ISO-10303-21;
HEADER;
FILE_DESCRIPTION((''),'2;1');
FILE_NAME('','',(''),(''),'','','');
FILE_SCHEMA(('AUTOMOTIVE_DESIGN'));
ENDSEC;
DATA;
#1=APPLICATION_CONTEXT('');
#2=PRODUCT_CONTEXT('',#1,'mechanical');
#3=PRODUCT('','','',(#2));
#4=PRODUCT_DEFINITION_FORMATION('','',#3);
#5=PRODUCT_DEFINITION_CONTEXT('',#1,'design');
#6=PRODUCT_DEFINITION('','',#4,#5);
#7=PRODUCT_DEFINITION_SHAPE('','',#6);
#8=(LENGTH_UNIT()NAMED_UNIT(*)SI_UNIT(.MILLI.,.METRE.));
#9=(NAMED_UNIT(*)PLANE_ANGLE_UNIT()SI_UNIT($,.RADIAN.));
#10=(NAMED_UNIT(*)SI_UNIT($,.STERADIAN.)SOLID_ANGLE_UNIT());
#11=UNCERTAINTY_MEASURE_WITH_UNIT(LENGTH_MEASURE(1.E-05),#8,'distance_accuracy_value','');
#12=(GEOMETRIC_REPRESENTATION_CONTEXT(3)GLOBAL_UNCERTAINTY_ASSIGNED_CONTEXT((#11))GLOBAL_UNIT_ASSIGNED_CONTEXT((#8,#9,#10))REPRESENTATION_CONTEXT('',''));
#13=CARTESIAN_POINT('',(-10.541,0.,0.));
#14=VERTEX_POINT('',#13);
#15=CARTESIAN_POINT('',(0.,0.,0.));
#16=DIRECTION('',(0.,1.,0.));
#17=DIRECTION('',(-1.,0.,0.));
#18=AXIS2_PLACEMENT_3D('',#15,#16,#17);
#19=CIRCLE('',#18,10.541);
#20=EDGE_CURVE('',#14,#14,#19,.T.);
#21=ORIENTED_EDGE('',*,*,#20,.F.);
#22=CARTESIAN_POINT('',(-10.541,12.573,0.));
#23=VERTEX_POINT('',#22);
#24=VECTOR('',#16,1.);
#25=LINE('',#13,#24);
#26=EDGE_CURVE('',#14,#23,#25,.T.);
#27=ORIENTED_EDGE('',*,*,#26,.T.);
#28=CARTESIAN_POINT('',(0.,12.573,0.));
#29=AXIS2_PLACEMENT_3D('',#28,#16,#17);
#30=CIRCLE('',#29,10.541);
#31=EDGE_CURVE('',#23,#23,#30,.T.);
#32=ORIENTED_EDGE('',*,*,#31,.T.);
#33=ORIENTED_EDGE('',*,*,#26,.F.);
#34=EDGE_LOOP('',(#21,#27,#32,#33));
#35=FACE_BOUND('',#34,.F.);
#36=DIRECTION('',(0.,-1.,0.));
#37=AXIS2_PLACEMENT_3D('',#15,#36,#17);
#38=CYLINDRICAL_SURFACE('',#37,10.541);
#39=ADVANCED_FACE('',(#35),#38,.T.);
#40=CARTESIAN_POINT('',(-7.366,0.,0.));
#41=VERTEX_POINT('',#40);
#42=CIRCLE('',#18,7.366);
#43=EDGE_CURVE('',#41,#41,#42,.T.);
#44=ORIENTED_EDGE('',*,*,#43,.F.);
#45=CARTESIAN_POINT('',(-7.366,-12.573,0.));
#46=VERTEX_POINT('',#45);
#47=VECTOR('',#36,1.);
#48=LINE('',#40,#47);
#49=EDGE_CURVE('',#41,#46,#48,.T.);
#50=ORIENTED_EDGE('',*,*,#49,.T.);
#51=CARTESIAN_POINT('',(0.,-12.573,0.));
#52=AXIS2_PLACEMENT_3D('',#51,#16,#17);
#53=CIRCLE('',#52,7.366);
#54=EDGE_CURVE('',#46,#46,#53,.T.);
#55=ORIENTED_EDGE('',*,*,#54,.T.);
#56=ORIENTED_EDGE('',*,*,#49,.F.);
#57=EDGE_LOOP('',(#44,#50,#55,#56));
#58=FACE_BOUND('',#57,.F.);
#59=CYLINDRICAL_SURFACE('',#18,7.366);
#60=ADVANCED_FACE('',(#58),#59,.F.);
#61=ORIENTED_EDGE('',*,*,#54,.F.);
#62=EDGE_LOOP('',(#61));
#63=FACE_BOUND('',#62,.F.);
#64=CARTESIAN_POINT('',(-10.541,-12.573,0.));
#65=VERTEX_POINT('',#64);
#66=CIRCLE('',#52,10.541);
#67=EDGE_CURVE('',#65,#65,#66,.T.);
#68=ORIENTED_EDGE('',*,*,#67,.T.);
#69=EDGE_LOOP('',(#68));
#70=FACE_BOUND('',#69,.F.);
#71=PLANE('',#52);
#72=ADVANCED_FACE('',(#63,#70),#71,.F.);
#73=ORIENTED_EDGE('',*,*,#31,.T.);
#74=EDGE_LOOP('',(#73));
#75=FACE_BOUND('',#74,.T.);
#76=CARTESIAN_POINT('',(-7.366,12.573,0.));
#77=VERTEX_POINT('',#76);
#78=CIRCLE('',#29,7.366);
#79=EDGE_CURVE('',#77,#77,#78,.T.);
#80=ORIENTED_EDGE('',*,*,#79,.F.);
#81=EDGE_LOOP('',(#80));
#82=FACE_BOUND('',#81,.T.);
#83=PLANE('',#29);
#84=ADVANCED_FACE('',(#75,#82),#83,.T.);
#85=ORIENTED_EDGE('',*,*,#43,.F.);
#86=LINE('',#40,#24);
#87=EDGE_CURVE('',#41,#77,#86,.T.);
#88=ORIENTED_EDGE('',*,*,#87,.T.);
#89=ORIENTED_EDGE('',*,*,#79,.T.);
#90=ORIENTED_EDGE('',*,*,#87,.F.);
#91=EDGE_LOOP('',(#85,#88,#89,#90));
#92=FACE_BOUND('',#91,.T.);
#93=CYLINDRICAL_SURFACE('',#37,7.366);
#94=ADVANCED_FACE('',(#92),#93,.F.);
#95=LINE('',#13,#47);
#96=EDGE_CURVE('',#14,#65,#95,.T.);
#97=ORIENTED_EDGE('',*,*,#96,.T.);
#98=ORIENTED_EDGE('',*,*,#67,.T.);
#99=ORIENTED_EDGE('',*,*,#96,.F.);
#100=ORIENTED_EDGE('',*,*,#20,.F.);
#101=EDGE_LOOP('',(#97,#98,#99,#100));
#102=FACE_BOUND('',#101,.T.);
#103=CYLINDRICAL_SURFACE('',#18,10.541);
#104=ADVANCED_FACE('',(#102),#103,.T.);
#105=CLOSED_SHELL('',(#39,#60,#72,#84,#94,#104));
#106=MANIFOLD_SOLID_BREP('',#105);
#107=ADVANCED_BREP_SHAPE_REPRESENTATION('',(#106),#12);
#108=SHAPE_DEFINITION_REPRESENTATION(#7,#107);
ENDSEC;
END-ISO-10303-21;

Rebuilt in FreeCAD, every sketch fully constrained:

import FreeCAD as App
import Part
import Sketcher
Q = App.Units.Quantity

doc = App.newDocument("Part")
body = doc.addObject("PartDesign::Body", "Body")

# Sketch on XZ plane
sketch1 = body.newObject("Sketcher::SketchObject", "Sketch")
sketch1.AttachmentSupport = (doc.getObject("XZ_Plane"), [""])
sketch1.MapMode = "FlatFace"
sketch1.addGeometry(Part.Circle(App.Vector(0, 0, 0), App.Vector(0, 0, 1), 10.541), False)
sketch1.addGeometry(Part.Circle(App.Vector(0, 0, 0), App.Vector(0, 0, 1), 7.366), False)
sketch1.addConstraint(Sketcher.Constraint("Coincident", 0, 3, -1, 1))
sketch1.addConstraint(Sketcher.Constraint("Coincident", 1, 3, -1, 1))
sketch1.addConstraint(Sketcher.Constraint("Diameter", 1, Q("0.58 in")))
sketch1.addConstraint(Sketcher.Constraint("Diameter", 0, Q("0.83 in")))
pad1 = body.newObject("PartDesign::Pad", "Pad")
pad1.Profile = sketch1
pad1.Length = Q("0.99 in")
pad1.Midplane = True

doc.recompute()
